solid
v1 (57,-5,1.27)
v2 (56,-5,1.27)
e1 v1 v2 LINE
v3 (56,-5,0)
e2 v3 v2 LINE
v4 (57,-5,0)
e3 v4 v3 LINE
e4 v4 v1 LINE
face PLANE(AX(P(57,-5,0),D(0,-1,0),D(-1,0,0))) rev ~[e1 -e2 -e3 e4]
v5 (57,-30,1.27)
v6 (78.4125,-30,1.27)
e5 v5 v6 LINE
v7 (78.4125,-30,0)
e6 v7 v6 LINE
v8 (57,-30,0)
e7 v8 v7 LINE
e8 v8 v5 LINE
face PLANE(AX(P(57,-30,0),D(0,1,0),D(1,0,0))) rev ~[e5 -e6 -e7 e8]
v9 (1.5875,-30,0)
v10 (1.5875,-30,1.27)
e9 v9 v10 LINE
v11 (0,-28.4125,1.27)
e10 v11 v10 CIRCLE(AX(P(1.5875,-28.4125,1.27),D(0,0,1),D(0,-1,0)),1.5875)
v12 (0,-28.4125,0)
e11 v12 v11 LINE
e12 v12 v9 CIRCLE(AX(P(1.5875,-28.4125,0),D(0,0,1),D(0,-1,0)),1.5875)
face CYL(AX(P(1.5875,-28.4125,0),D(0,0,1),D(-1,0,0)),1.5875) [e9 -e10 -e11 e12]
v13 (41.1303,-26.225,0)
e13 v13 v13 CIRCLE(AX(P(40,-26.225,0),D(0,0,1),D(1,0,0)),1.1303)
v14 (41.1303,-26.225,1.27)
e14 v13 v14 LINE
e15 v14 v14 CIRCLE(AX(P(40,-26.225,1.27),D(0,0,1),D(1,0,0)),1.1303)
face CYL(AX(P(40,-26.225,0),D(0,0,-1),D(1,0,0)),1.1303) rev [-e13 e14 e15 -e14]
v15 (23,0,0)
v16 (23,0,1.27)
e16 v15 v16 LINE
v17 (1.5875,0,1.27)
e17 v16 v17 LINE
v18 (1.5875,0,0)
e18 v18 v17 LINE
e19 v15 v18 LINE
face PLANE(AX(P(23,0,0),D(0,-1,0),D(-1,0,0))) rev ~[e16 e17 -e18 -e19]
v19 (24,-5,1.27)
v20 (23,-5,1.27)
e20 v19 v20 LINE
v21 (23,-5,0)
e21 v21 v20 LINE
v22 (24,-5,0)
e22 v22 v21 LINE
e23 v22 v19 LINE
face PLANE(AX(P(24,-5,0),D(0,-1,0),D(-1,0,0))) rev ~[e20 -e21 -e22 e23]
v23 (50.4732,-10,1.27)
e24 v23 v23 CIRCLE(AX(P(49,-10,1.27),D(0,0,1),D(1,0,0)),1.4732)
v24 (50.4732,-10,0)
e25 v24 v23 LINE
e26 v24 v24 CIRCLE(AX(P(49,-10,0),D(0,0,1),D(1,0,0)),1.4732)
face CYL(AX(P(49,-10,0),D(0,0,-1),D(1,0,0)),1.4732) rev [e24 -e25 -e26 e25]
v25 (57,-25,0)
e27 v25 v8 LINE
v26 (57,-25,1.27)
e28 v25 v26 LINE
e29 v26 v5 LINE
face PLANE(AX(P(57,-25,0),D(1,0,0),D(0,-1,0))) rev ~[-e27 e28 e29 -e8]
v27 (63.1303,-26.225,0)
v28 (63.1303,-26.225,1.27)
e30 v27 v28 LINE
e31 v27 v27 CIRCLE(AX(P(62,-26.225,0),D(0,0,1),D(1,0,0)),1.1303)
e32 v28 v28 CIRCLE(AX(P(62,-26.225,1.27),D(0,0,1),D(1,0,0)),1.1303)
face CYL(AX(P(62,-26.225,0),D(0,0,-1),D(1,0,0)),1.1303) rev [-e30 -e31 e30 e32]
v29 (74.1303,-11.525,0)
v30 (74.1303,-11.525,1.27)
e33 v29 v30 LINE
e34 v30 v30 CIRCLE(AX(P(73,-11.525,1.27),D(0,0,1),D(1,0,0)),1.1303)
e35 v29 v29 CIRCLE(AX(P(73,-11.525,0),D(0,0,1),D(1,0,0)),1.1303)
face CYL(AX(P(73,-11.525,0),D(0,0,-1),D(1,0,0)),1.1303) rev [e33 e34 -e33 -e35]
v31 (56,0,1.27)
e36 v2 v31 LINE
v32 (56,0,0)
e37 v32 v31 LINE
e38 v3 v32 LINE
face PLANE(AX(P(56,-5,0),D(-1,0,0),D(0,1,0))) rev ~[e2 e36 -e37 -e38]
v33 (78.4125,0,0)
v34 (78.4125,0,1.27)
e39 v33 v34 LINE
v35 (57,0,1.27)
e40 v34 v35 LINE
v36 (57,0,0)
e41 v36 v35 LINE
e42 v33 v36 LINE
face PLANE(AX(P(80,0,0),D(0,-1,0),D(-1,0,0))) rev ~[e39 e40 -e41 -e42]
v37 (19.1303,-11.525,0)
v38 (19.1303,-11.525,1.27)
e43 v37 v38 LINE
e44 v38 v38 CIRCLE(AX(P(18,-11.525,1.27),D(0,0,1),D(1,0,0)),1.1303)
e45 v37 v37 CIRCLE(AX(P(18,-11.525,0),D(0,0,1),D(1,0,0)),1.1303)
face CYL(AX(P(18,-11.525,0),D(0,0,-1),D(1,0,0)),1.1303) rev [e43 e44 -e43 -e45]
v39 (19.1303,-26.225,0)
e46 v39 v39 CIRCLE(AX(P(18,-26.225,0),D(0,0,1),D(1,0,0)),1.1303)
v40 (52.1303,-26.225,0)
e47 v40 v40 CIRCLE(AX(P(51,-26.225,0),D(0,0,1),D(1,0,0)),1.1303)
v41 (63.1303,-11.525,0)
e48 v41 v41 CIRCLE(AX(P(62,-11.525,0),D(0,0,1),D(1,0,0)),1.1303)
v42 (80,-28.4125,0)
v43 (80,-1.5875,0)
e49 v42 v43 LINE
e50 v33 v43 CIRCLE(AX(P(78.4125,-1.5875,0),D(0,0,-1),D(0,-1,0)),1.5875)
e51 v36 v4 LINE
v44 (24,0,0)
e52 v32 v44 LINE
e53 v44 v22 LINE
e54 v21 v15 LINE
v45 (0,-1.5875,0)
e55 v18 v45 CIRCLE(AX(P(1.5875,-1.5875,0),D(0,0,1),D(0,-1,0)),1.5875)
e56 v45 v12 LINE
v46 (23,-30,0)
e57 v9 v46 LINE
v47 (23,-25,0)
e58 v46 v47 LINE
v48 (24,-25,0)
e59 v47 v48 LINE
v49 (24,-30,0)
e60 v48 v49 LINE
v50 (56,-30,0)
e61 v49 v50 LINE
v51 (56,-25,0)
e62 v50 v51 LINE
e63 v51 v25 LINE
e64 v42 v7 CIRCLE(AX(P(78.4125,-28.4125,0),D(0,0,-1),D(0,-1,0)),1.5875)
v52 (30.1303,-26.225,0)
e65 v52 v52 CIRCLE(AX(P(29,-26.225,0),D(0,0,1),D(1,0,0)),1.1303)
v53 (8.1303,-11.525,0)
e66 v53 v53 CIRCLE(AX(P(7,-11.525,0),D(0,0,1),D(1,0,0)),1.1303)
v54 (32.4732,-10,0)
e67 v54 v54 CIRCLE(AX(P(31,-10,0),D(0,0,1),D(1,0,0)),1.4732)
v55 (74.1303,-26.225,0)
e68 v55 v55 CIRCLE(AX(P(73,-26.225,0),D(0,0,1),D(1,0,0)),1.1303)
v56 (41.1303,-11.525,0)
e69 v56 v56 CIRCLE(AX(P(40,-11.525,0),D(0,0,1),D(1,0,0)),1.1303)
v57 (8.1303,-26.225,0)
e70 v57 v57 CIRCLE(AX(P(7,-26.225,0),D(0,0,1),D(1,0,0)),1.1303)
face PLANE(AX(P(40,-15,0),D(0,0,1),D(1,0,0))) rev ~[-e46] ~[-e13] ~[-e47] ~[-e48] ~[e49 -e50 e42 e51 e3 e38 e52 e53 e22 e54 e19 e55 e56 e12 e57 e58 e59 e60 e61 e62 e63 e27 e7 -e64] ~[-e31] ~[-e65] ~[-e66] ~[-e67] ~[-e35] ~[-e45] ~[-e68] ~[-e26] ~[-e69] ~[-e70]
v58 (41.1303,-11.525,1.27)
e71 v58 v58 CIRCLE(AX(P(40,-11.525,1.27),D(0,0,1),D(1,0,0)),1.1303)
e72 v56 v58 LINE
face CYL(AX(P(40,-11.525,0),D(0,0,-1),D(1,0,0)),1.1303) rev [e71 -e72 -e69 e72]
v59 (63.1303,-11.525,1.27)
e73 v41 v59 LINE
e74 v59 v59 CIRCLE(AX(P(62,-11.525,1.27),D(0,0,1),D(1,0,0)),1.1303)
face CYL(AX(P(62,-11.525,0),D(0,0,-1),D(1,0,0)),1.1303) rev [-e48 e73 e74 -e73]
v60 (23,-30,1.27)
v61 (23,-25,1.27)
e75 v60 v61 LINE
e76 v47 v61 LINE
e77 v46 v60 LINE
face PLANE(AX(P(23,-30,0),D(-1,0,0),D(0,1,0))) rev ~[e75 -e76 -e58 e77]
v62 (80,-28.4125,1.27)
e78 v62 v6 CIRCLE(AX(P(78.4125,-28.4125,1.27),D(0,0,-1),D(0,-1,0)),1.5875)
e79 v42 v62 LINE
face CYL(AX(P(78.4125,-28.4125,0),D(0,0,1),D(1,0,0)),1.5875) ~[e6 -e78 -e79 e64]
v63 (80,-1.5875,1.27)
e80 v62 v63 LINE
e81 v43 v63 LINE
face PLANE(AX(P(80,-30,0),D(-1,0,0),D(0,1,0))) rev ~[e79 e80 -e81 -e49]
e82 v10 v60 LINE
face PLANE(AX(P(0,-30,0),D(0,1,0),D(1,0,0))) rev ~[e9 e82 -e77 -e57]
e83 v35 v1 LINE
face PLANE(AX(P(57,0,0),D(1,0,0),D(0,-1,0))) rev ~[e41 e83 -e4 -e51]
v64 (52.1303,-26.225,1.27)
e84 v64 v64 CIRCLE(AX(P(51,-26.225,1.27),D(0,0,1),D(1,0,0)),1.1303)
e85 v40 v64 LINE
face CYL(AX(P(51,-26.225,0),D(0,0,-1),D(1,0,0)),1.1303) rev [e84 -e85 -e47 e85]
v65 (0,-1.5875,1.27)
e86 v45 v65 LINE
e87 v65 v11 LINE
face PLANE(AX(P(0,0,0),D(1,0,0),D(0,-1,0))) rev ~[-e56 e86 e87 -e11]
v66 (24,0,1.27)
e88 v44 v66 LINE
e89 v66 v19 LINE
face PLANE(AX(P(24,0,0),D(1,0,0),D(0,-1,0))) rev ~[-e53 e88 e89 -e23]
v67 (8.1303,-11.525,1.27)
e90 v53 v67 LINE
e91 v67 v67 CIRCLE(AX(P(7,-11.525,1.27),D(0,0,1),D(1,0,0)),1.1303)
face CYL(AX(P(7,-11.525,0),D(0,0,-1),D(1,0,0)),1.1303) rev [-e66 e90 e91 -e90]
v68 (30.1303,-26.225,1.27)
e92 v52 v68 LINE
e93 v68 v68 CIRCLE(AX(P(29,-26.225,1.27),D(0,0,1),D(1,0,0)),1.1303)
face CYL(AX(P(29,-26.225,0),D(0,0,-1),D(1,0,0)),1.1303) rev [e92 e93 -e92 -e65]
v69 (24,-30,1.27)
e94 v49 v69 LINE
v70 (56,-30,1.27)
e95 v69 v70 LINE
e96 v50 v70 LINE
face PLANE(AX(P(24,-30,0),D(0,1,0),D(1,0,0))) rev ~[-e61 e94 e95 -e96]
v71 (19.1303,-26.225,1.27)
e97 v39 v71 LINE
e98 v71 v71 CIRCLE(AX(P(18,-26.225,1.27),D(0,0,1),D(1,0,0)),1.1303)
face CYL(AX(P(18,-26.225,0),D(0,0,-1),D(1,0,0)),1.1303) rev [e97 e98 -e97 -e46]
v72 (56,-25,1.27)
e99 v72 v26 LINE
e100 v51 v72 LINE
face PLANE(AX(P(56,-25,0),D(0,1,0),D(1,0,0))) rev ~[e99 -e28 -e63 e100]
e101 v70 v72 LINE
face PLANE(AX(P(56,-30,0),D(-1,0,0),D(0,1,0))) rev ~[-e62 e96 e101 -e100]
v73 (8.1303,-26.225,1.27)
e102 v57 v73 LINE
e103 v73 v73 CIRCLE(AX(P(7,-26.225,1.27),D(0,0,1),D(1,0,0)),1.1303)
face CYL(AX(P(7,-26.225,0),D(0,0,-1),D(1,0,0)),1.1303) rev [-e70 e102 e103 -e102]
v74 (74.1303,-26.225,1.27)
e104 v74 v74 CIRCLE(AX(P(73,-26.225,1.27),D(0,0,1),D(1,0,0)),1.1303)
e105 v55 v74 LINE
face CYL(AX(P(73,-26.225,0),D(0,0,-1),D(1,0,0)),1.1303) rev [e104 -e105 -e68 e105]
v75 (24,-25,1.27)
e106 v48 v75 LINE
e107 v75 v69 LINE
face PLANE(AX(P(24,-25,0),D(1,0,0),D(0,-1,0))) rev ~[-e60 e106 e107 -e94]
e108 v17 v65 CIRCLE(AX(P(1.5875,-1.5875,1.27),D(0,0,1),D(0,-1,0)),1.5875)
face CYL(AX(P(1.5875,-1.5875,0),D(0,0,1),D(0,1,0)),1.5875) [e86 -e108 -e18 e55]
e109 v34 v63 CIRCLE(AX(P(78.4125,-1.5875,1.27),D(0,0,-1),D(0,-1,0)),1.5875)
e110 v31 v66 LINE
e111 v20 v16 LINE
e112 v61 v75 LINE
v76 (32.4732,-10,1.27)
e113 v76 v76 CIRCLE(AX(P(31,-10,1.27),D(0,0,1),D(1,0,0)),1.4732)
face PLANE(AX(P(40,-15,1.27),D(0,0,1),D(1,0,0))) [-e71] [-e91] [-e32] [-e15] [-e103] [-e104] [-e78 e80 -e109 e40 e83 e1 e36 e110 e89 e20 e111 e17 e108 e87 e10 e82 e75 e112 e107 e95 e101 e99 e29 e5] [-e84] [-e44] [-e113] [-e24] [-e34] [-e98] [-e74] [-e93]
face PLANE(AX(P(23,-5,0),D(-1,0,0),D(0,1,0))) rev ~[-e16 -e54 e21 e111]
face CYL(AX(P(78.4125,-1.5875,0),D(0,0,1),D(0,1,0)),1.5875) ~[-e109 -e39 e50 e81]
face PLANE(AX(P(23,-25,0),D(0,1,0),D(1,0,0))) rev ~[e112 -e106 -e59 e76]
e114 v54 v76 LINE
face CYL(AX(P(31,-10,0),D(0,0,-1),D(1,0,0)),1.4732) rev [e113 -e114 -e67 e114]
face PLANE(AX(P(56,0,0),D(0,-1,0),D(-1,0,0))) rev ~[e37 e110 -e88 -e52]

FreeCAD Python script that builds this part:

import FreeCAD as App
import Part
import Sketcher
from FreeCAD import Vector


def edges_at(feature, points):
    """Names of the edges that pass closest to the given points."""
    edges = feature.Shape.Edges
    near = lambda p: min(range(len(edges)), key=lambda i: edges[i].distToShape(Part.Vertex(*p))[0])
    return sorted({f"Edge{near(p) + 1}" for p in points})


def add_polygon(sketch, points):
    """Adds a closed chain of lines whose ends are joined by coincident constraints."""
    first, n = sketch.GeometryCount, len(points)
    for a, b in zip(points, points[1:] + points[:1]):
        sketch.addGeometry(Part.LineSegment(App.Vector(*a, 0), App.Vector(*b, 0)), False)
    for i in range(n):
        sketch.addConstraint(Sketcher.Constraint("Coincident", first + i, 2, first + (i + 1) % n, 1))

doc = App.newDocument("Part")
params = doc.addObject("Spreadsheet::Sheet", "Params")
for row, (alias, value) in enumerate([
    ("sketch1_width", "23 mm"),
    ("sketch1_width2", "1 mm"),
    ("sketch1_width3", "32 mm"),
    ("sketch1_height", "30 mm"),
    ("sketch1_height2", "5 mm"),
    ("pad1_length", "1.27 mm"),
    ("fillet_radius", "1.5875 mm"),
], start=1):
    params.set(f"A{row}", alias)
    params.set(f"B{row}", "=" + value)
    params.setAlias(f"B{row}", alias)

body = doc.addObject("PartDesign::Body", "Body")

# Sketch on XY plane
sketch1 = body.newObject("Sketcher::SketchObject", "Sketch")
sketch1.AttachmentSupport = (doc.getObject("XY_Plane"), [""])
sketch1.MapMode = "FlatFace"
add_polygon(sketch1, [(23, 0), (0, 0), (0, -30), (23, -30), (23, -25), (24, -25), (24, -30), (56, -30), (56, -25), (57, -25), (57, -30), (80, -30), (80, 0), (57, 0), (57, -5), (56, -5), (56, 0), (24, 0), (24, -5), (23, -5)])  # lines 0-19
sketch1.addGeometry(Part.Circle(Vector(7, -26.2, 0), Vector(0, 0, 1), 1.1), False)  # 20
sketch1.addGeometry(Part.Circle(Vector(18, -26.2, 0), Vector(0, 0, 1), 1.1), False)  # 21
sketch1.addGeometry(Part.Circle(Vector(29, -26.2, 0), Vector(0, 0, 1), 1.1), False)  # 22
sketch1.addGeometry(Part.Circle(Vector(40, -26.2, 0), Vector(0, 0, 1), 1.1), False)  # 23
sketch1.addGeometry(Part.Circle(Vector(51, -26.2, 0), Vector(0, 0, 1), 1.1), False)  # 24
sketch1.addGeometry(Part.Circle(Vector(62, -26.2, 0), Vector(0, 0, 1), 1.1), False)  # 25
sketch1.addGeometry(Part.Circle(Vector(73, -26.2, 0), Vector(0, 0, 1), 1.1), False)  # 26
sketch1.addGeometry(Part.Circle(Vector(7, -11.5, 0), Vector(0, 0, 1), 1.1), False)  # 27
sketch1.addGeometry(Part.Circle(Vector(18, -11.5, 0), Vector(0, 0, 1), 1.1), False)  # 28
sketch1.addGeometry(Part.Circle(Vector(40, -11.5, 0), Vector(0, 0, 1), 1.1), False)  # 29
sketch1.addGeometry(Part.Circle(Vector(31, -10, 0), Vector(0, 0, 1), 1.5), False)  # 30
sketch1.addGeometry(Part.Circle(Vector(49, -10, 0), Vector(0, 0, 1), 1.5), False)  # 31
sketch1.addGeometry(Part.Circle(Vector(62, -11.5, 0), Vector(0, 0, 1), 1.1), False)  # 32
sketch1.addGeometry(Part.Circle(Vector(73, -11.5, 0), Vector(0, 0, 1), 1.1), False)  # 33
sketch1.addConstraint([
    Sketcher.Constraint("Horizontal", 0),
    Sketcher.Constraint("Vertical", 1),
    Sketcher.Constraint("Horizontal", 2),
    Sketcher.Constraint("Vertical", 3),
    Sketcher.Constraint("Horizontal", 4),
    Sketcher.Constraint("Vertical", 5),
    Sketcher.Constraint("Horizontal", 6),
    Sketcher.Constraint("Vertical", 7),
    Sketcher.Constraint("Horizontal", 8),
    Sketcher.Constraint("Vertical", 9),
    Sketcher.Constraint("Horizontal", 10),
    Sketcher.Constraint("Vertical", 11),
    Sketcher.Constraint("Horizontal", 12),
    Sketcher.Constraint("Vertical", 13),
    Sketcher.Constraint("Horizontal", 14),
    Sketcher.Constraint("Vertical", 15),
    Sketcher.Constraint("Horizontal", 16),
    Sketcher.Constraint("Vertical", 17),
    Sketcher.Constraint("Horizontal", 18),
    Sketcher.Constraint("Vertical", 19),
    Sketcher.Constraint("Coincident", 0, 2, -1, 1),
    Sketcher.Constraint("Equal", 20, 21),
    Sketcher.Constraint("Equal", 21, 22),
    Sketcher.Constraint("Equal", 22, 23),
    Sketcher.Constraint("Equal", 23, 24),
    Sketcher.Constraint("Equal", 24, 25),
    Sketcher.Constraint("Equal", 25, 26),
    Sketcher.Constraint("Equal", 26, 27),
    Sketcher.Constraint("Equal", 27, 28),
    Sketcher.Constraint("Equal", 28, 29),
    Sketcher.Constraint("Equal", 30, 31),
    Sketcher.Constraint("Equal", 29, 32),
    Sketcher.Constraint("Equal", 32, 33),
    Sketcher.Constraint("PointOnObject", 11, 2, -1),
    Sketcher.Constraint("PointOnObject", 15, 2, -1),
    Sketcher.Constraint("Horizontal", 20, 3, 21, 3),
    Sketcher.Constraint("Horizontal", 21, 3, 22, 3),
    Sketcher.Constraint("Horizontal", 22, 3, 23, 3),
    Sketcher.Constraint("Horizontal", 23, 3, 24, 3),
    Sketcher.Constraint("Horizontal", 24, 3, 25, 3),
    Sketcher.Constraint("Horizontal", 25, 3, 26, 3),
    Sketcher.Constraint("Horizontal", 27, 3, 28, 3),
    Sketcher.Constraint("Horizontal", 28, 3, 29, 3),
    Sketcher.Constraint("Horizontal", 30, 3, 31, 3),
    Sketcher.Constraint("Horizontal", 29, 3, 32, 3),
    Sketcher.Constraint("Horizontal", 32, 3, 33, 3),
    Sketcher.Constraint("Horizontal", 2, 2, 5, 2),
    Sketcher.Constraint("Horizontal", 4, 2, 7, 2),
    Sketcher.Constraint("Horizontal", 6, 2, 9, 2),
    Sketcher.Constraint("Horizontal", 14, 2, 17, 2),
    Sketcher.Constraint("Vertical", 20, 3, 27, 3),
    Sketcher.Constraint("Vertical", 21, 3, 28, 3),
    Sketcher.Constraint("Vertical", 23, 3, 29, 3),
    Sketcher.Constraint("Vertical", 25, 3, 32, 3),
    Sketcher.Constraint("Vertical", 26, 3, 33, 3),
    Sketcher.Constraint("Vertical", 9, 2, 12, 2),
    Sketcher.Constraint("Vertical", 7, 2, 14, 2),
    Sketcher.Constraint("Vertical", 5, 2, 16, 2),
    Sketcher.Constraint("Vertical", 3, 2, 18, 2),
    Sketcher.Constraint("Equal", 4, 8),
    Sketcher.Constraint("Equal", 2, 10),
    Sketcher.Constraint("Equal", 9, 13),
    Sketcher.Constraint("DistanceX", 0, 2, 0, 1, 23.0),
    Sketcher.Constraint("DistanceX", 4, 1, 4, 2, 1.0),
    Sketcher.Constraint("DistanceX", 6, 1, 6, 2, 32.0),
    Sketcher.Constraint("DistanceY", 1, 2, 1, 1, 30.0),
    Sketcher.Constraint("DistanceY", 3, 1, 3, 2, 5.0),
    Sketcher.Constraint("DistanceX", -1, 1, 20, 3, 7.0),
    Sketcher.Constraint("DistanceX", -1, 1, 21, 3, 18.0),
    Sketcher.Constraint("DistanceX", -1, 1, 22, 3, 29.0),
    Sketcher.Constraint("DistanceX", -1, 1, 23, 3, 40.0),
    Sketcher.Constraint("DistanceX", -1, 1, 24, 3, 51.0),
    Sketcher.Constraint("DistanceX", -1, 1, 25, 3, 62.0),
    Sketcher.Constraint("DistanceX", -1, 1, 26, 3, 73.0),
    Sketcher.Constraint("DistanceX", -1, 1, 30, 3, 31.0),
    Sketcher.Constraint("DistanceY", 30, 3, -1, 1, 10.0),
    Sketcher.Constraint("DistanceX", -1, 1, 31, 3, 49.0),
    Sketcher.Constraint("Diameter", 20, 2.2606),
    Sketcher.Constraint("Diameter", 30, 2.9464),
    Sketcher.Constraint("DistanceY", 20, 3, 27, 3, 14.7),
    Sketcher.Constraint("DistanceY", 20, 3, -1, 1, 26.225),
])
sketch1.setExpression("Constraints[82]", "Params.sketch1_width")
sketch1.setExpression("Constraints[83]", "Params.sketch1_width2")
sketch1.setExpression("Constraints[84]", "Params.sketch1_width3")
sketch1.setExpression("Constraints[85]", "Params.sketch1_height")
sketch1.setExpression("Constraints[86]", "Params.sketch1_height2")
pad1 = body.newObject("PartDesign::Pad", "Pad")
pad1.Profile = sketch1
pad1.setExpression("Length", "Params.pad1_length")
doc.recompute()

fillet = body.newObject("PartDesign::Fillet", "Fillet")
fillet.Base = (pad1, edges_at(pad1, [
    (0, -30, 0.635),
    (0, 0, 0.635),
    (80, 0, 0.635),
    (80, -30, 0.635),
]))
fillet.setExpression("Radius", "Params.fillet_radius")

doc.recompute()
